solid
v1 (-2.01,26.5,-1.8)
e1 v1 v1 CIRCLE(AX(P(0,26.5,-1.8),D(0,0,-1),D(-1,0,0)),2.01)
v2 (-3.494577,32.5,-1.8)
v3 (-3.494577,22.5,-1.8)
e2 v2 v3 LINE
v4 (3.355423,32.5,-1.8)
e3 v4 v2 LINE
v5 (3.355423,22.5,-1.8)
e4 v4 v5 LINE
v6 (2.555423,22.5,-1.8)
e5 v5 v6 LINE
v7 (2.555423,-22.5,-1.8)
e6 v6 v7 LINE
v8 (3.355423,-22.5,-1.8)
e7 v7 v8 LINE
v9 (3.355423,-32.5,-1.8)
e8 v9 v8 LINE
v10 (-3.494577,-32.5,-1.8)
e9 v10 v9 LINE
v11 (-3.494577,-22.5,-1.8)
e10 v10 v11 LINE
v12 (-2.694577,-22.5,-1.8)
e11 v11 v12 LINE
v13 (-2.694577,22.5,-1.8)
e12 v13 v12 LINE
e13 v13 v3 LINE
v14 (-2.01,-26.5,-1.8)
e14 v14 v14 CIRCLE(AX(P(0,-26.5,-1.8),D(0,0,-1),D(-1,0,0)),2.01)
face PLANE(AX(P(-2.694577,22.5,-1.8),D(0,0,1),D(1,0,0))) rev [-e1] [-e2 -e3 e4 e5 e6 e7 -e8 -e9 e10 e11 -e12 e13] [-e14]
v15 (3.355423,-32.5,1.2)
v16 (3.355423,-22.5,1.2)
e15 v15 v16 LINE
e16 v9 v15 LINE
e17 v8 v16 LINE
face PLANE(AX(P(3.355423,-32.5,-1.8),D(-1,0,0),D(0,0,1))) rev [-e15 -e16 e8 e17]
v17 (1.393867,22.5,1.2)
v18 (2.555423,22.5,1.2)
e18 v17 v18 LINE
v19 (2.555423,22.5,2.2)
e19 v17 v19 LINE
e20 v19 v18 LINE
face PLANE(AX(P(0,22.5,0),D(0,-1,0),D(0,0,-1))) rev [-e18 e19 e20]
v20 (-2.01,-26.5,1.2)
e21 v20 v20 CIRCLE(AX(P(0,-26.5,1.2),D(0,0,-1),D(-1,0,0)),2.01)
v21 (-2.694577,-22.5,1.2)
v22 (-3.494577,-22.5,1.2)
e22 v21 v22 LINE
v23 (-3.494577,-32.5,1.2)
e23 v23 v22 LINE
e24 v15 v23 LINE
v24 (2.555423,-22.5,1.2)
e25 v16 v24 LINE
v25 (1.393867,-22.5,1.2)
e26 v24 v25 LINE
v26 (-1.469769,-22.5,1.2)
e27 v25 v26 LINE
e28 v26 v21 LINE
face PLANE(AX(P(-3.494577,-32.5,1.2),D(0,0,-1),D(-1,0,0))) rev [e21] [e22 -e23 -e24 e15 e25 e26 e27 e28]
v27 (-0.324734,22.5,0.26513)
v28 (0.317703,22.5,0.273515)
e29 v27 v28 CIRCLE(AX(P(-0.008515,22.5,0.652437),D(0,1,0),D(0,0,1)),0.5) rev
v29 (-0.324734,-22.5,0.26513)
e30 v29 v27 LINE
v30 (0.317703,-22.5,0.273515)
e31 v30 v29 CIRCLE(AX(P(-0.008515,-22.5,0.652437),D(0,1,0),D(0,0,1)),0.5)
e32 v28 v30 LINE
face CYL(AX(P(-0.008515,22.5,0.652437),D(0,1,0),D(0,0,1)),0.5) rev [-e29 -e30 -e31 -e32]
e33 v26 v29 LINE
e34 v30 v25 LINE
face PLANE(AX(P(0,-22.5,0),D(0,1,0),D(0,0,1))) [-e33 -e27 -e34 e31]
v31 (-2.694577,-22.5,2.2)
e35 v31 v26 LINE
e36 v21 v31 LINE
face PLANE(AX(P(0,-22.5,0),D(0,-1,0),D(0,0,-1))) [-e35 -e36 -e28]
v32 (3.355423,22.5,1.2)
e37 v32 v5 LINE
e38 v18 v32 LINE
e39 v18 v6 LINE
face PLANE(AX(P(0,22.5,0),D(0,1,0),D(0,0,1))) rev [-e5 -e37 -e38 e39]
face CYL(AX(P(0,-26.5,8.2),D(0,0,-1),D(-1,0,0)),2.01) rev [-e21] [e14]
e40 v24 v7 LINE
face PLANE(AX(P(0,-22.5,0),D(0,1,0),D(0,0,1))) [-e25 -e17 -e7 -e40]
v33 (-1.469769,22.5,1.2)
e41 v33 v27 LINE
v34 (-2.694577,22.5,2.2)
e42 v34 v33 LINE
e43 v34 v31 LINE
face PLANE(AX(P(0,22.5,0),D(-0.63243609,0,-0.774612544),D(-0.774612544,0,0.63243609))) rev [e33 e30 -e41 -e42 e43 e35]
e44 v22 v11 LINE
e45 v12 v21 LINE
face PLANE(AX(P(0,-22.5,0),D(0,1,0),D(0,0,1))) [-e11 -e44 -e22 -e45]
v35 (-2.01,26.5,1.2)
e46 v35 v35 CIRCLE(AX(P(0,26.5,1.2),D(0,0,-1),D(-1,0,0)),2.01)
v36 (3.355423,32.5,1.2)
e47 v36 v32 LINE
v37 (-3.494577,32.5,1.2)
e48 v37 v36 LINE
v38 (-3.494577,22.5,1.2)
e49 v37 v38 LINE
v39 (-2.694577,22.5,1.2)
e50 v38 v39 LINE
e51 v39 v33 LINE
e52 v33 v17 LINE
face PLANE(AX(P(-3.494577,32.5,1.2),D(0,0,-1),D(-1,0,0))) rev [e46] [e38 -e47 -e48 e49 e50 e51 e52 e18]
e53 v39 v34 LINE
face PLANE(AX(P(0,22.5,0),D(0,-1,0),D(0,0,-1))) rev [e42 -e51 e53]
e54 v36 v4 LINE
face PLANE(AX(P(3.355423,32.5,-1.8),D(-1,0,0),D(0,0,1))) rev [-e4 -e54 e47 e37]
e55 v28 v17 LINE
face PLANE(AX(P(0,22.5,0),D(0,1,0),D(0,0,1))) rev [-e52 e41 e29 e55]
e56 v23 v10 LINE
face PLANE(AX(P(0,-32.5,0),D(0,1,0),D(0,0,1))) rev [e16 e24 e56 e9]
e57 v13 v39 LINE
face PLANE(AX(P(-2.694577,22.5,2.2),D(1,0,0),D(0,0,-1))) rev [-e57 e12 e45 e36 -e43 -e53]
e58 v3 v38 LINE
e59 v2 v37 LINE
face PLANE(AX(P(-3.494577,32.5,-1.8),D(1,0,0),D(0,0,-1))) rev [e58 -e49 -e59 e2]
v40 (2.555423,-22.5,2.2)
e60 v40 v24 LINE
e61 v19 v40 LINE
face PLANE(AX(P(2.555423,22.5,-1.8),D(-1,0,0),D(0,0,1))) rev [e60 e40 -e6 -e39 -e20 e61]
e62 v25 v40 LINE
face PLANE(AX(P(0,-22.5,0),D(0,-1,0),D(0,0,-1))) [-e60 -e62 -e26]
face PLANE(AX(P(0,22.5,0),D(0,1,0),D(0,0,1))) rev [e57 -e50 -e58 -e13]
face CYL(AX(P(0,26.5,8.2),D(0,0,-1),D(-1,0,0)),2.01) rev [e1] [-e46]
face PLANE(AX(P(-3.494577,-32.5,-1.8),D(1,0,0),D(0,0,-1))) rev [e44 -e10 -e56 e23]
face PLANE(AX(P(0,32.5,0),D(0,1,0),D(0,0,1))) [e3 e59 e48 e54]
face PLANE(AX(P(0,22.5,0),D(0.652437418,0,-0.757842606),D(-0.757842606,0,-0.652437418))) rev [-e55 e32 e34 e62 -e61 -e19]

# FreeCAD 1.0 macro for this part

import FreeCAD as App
import Part
import Sketcher
from FreeCAD import Vector
Q = App.Units.Quantity


def edges_at(feature, points):
    """Names of the edges that pass closest to the given points."""
    edges = feature.Shape.Edges
    near = lambda p: min(range(len(edges)), key=lambda i: edges[i].distToShape(Part.Vertex(*p))[0])
    return sorted({f"Edge{near(p) + 1}" for p in points})

doc = App.newDocument("Part")
body = doc.addObject("PartDesign::Body", "Body")

# Sketch on XZ plane
sketch1 = body.newObject("Sketcher::SketchObject", "Sketch")
sketch1.AttachmentSupport = (doc.getObject("XZ_Plane"), [""])
sketch1.MapMode = "FlatFace"
sketch1.addGeometry([
    Part.LineSegment(Vector(-2.7, 2.2, 0), Vector(0, 0, 0)),  # 0
    Part.LineSegment(Vector(0, 0, 0), Vector(2.6, 2.2, 0)),  # 1
    Part.LineSegment(Vector(2.6, 2.2, 0), Vector(2.6, -1.8, 0)),  # 2
    Part.LineSegment(Vector(2.6, -1.8, 0), Vector(-2.7, -1.8, 0)),  # 3
    Part.LineSegment(Vector(-2.7, -1.8, 0), Vector(-2.7, 2.2, 0)),  # 4
], False)
sketch1.addConstraint([
    Sketcher.Constraint("Coincident", 0, 2, 1, 1),
    Sketcher.Constraint("Coincident", 1, 2, 2, 1),
    Sketcher.Constraint("Coincident", 2, 2, 3, 1),
    Sketcher.Constraint("Coincident", 3, 2, 4, 1),
    Sketcher.Constraint("Coincident", 4, 2, 0, 1),
    Sketcher.Constraint("Vertical", 2),
    Sketcher.Constraint("Horizontal", 3),
    Sketcher.Constraint("Vertical", 4),
    Sketcher.Constraint("Coincident", 0, 2, -1, 1),
    Sketcher.Constraint("Horizontal", 1, 2, 4, 2),
    Sketcher.Constraint("DistanceY", 2, 2, 2, 1, Q("4 mm")),
    Sketcher.Constraint("DistanceX", 3, 2, 3, 1, Q("5.25 mm")),
    Sketcher.Constraint("DistanceY", -1, 1, 1, 2, Q("2.2 mm")),
    Sketcher.Constraint("Distance", 1, Q("3.371971 mm")),
])
pad1 = body.newObject("PartDesign::Pad", "Pad")
pad1.Profile = sketch1
pad1.Length = 45
pad1.Midplane = True

# Sketch on XZ plane
sketch2 = body.newObject("Sketcher::SketchObject", "Sketch001")
sketch2.AttachmentSupport = (doc.getObject("XZ_Plane"), [""])
sketch2.MapMode = "FlatFace"
sketch2.AttachmentOffset = App.Placement(Vector(0, 0, -22.5), App.Rotation())
sketch2.addGeometry([
    Part.LineSegment(Vector(-3.5, -1.8, 0), Vector(-3.5, 1.2, 0)),
    Part.LineSegment(Vector(-3.5, 1.2, 0), Vector(3.4, 1.2, 0)),
    Part.LineSegment(Vector(3.4, 1.2, 0), Vector(3.4, -1.8, 0)),
    Part.LineSegment(Vector(3.4, -1.8, 0), Vector(-3.5, -1.8, 0)),
], False)
sketch2.addConstraint([
    Sketcher.Constraint("Coincident", 0, 2, 1, 1),
    Sketcher.Constraint("Coincident", 1, 2, 2, 1),
    Sketcher.Constraint("Coincident", 2, 2, 3, 1),
    Sketcher.Constraint("Coincident", 3, 2, 0, 1),
    Sketcher.Constraint("Vertical", 0),
    Sketcher.Constraint("Horizontal", 1),
    Sketcher.Constraint("Vertical", 2),
    Sketcher.Constraint("Horizontal", 3),
    Sketcher.Constraint("DistanceY", 0, 1, 0, 2, Q("3 mm")),
    Sketcher.Constraint("DistanceX", 1, 1, 1, 2, Q("6.85 mm")),
    Sketcher.Constraint("DistanceY", -1, 1, 0, 2, Q("1.2 mm")),
    Sketcher.Constraint("DistanceX", 0, 2, -1, 1, Q("3.494577 mm")),
])
pad2 = body.newObject("PartDesign::Pad", "Pad001")
pad2.Profile = sketch2
pad2.Length = 10
pad2.Reversed = True

# Sketch on XZ plane
sketch3 = body.newObject("Sketcher::SketchObject", "Sketch002")
sketch3.AttachmentSupport = (doc.getObject("XZ_Plane"), [""])
sketch3.MapMode = "FlatFace"
sketch3.AttachmentOffset = App.Placement(Vector(0, 0, 22.5), App.Rotation())
sketch3.addGeometry([
    Part.LineSegment(Vector(-3.5, 1.2, 0), Vector(-3.5, -1.8, 0)),
    Part.LineSegment(Vector(-3.5, -1.8, 0), Vector(3.4, -1.8, 0)),
    Part.LineSegment(Vector(3.4, -1.8, 0), Vector(3.4, 1.2, 0)),
    Part.LineSegment(Vector(3.4, 1.2, 0), Vector(-3.5, 1.2, 0)),
], False)
sketch3.addConstraint([
    Sketcher.Constraint("Coincident", 0, 2, 1, 1),
    Sketcher.Constraint("Coincident", 1, 2, 2, 1),
    Sketcher.Constraint("Coincident", 2, 2, 3, 1),
    Sketcher.Constraint("Coincident", 3, 2, 0, 1),
    Sketcher.Constraint("Vertical", 0),
    Sketcher.Constraint("Horizontal", 1),
    Sketcher.Constraint("Vertical", 2),
    Sketcher.Constraint("Horizontal", 3),
    Sketcher.Constraint("DistanceY", 0, 2, 0, 1, Q("3 mm")),
    Sketcher.Constraint("DistanceX", 1, 1, 1, 2, Q("6.85 mm")),
    Sketcher.Constraint("DistanceY", 0, 2, -1, 1, Q("1.8 mm")),
    Sketcher.Constraint("DistanceX", 0, 2, -1, 1, Q("3.494577 mm")),
])
pad3 = body.newObject("PartDesign::Pad", "Pad002")
pad3.Profile = sketch3
pad3.Length = 10
doc.recompute()

fillet = body.newObject("PartDesign::Fillet", "Fillet")
fillet.Base = (pad3, edges_at(pad3, [(0, 0, 0)]))
fillet.Radius = 0.5

# Sketch on XY plane
sketch4 = body.newObject("Sketcher::SketchObject", "Sketch003")
sketch4.AttachmentSupport = (doc.getObject("XY_Plane"), [""])
sketch4.MapMode = "FlatFace"
sketch4.AttachmentOffset = App.Placement(Vector(0, 0, -1.8), App.Rotation())
sketch4.addGeometry([
    Part.Circle(Vector(0, -26.5, 0), Vector(0, 0, 1), 2),
    Part.Circle(Vector(0, 26.5, 0), Vector(0, 0, 1), 2),
], False)
sketch4.addConstraint([
    Sketcher.Constraint("Equal", 0, 1),
    Sketcher.Constraint("Symmetric", 0, 3, 1, 3, -1, 1),
    Sketcher.Constraint("PointOnObject", 0, 3, -2),
    Sketcher.Constraint("Diameter", 0, Q("4.02 mm")),
    Sketcher.Constraint("DistanceY", 0, 3, 1, 3, Q("53 mm")),
])
pocket1 = body.newObject("PartDesign::Pocket", "Pocket")
pocket1.Profile = sketch4
pocket1.Length = 10
pocket1.Reversed = True

doc.recompute()
